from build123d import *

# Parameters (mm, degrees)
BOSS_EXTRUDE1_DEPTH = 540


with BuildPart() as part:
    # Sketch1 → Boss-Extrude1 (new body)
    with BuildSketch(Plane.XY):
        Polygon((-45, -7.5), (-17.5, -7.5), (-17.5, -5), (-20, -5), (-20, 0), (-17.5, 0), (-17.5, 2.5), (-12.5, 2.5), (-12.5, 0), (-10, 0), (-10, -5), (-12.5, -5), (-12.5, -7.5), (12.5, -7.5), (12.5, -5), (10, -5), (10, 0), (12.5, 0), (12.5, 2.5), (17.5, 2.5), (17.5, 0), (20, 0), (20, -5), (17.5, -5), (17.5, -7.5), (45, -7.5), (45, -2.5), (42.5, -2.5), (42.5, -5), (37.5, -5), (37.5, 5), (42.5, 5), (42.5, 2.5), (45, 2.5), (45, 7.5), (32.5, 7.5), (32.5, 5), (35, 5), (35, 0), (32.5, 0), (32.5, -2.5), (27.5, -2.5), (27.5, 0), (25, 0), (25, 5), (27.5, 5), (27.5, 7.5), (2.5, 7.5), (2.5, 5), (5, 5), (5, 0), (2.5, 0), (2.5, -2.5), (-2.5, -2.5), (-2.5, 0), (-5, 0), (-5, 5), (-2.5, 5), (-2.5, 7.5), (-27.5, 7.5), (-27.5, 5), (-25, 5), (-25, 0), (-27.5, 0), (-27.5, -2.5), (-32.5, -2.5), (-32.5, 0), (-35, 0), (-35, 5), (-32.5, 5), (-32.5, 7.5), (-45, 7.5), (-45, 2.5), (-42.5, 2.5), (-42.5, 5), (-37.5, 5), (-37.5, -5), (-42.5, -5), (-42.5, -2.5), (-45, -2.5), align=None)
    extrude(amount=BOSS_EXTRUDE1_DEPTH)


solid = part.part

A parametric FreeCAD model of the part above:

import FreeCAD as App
import Part
import Sketcher
Q = App.Units.Quantity

doc = App.newDocument("Part")
body = doc.addObject("PartDesign::Body", "Body")

sketch1 = doc.addObject("Sketcher::SketchObject", "Sketch")
body.addObject(sketch1)
sketch1.AttachmentSupport = (doc.XY_Plane, [""])
sketch1.MapMode = "FlatFace"
sketch1.addGeometry([
    Part.LineSegment(App.Vector(-45, -7.5, 0), App.Vector(-17.5, -7.5, 0)),
    Part.LineSegment(App.Vector(-17.5, -7.5, 0), App.Vector(-17.5, -5, 0)),
    Part.LineSegment(App.Vector(-17.5, -5, 0), App.Vector(-20, -5, 0)),
    Part.LineSegment(App.Vector(-20, -5, 0), App.Vector(-20, 0, 0)),
    Part.LineSegment(App.Vector(-20, 0, 0), App.Vector(-17.5, 0, 0)),
    Part.LineSegment(App.Vector(-17.5, 0, 0), App.Vector(-17.5, 2.5, 0)),
    Part.LineSegment(App.Vector(-17.5, 2.5, 0), App.Vector(-12.5, 2.5, 0)),
    Part.LineSegment(App.Vector(-12.5, 2.5, 0), App.Vector(-12.5, 0, 0)),
    Part.LineSegment(App.Vector(-12.5, 0, 0), App.Vector(-10, 0, 0)),
    Part.LineSegment(App.Vector(-10, 0, 0), App.Vector(-10, -5, 0)),
    Part.LineSegment(App.Vector(-10, -5, 0), App.Vector(-12.5, -5, 0)),
    Part.LineSegment(App.Vector(-12.5, -5, 0), App.Vector(-12.5, -7.5, 0)),
    Part.LineSegment(App.Vector(-12.5, -7.5, 0), App.Vector(12.5, -7.5, 0)),
    Part.LineSegment(App.Vector(12.5, -7.5, 0), App.Vector(12.5, -5, 0)),
    Part.LineSegment(App.Vector(12.5, -5, 0), App.Vector(10, -5, 0)),
    Part.LineSegment(App.Vector(10, -5, 0), App.Vector(10, 0, 0)),
    Part.LineSegment(App.Vector(10, 0, 0), App.Vector(12.5, 0, 0)),
    Part.LineSegment(App.Vector(12.5, 0, 0), App.Vector(12.5, 2.5, 0)),
    Part.LineSegment(App.Vector(12.5, 2.5, 0), App.Vector(17.5, 2.5, 0)),
    Part.LineSegment(App.Vector(17.5, 2.5, 0), App.Vector(17.5, 0, 0)),
    Part.LineSegment(App.Vector(17.5, 0, 0), App.Vector(20, 0, 0)),
    Part.LineSegment(App.Vector(20, 0, 0), App.Vector(20, -5, 0)),
    Part.LineSegment(App.Vector(20, -5, 0), App.Vector(17.5, -5, 0)),
    Part.LineSegment(App.Vector(17.5, -5, 0), App.Vector(17.5, -7.5, 0)),
    Part.LineSegment(App.Vector(17.5, -7.5, 0), App.Vector(45, -7.5, 0)),
    Part.LineSegment(App.Vector(45, -7.5, 0), App.Vector(45, -2.5, 0)),
    Part.LineSegment(App.Vector(45, -2.5, 0), App.Vector(42.5, -2.5, 0)),
    Part.LineSegment(App.Vector(42.5, -2.5, 0), App.Vector(42.5, -5, 0)),
    Part.LineSegment(App.Vector(42.5, -5, 0), App.Vector(37.5, -5, 0)),
    Part.LineSegment(App.Vector(37.5, -5, 0), App.Vector(37.5, 5, 0)),
    Part.LineSegment(App.Vector(37.5, 5, 0), App.Vector(42.5, 5, 0)),
    Part.LineSegment(App.Vector(42.5, 5, 0), App.Vector(42.5, 2.5, 0)),
    Part.LineSegment(App.Vector(42.5, 2.5, 0), App.Vector(45, 2.5, 0)),
    Part.LineSegment(App.Vector(45, 2.5, 0), App.Vector(45, 7.5, 0)),
    Part.LineSegment(App.Vector(45, 7.5, 0), App.Vector(32.5, 7.5, 0)),
    Part.LineSegment(App.Vector(32.5, 7.5, 0), App.Vector(32.5, 5, 0)),
    Part.LineSegment(App.Vector(32.5, 5, 0), App.Vector(35, 5, 0)),
    Part.LineSegment(App.Vector(35, 5, 0), App.Vector(35, 0, 0)),
    Part.LineSegment(App.Vector(35, 0, 0), App.Vector(32.5, 0, 0)),
    Part.LineSegment(App.Vector(32.5, 0, 0), App.Vector(32.5, -2.5, 0)),
    Part.LineSegment(App.Vector(32.5, -2.5, 0), App.Vector(27.5, -2.5, 0)),
    Part.LineSegment(App.Vector(27.5, -2.5, 0), App.Vector(27.5, 0, 0)),
    Part.LineSegment(App.Vector(27.5, 0, 0), App.Vector(25, 0, 0)),
    Part.LineSegment(App.Vector(25, 0, 0), App.Vector(25, 5, 0)),
    Part.LineSegment(App.Vector(25, 5, 0), App.Vector(27.5, 5, 0)),
    Part.LineSegment(App.Vector(27.5, 5, 0), App.Vector(27.5, 7.5, 0)),
    Part.LineSegment(App.Vector(27.5, 7.5, 0), App.Vector(2.5, 7.5, 0)),
    Part.LineSegment(App.Vector(2.5, 7.5, 0), App.Vector(2.5, 5, 0)),
    Part.LineSegment(App.Vector(2.5, 5, 0), App.Vector(5, 5, 0)),
    Part.LineSegment(App.Vector(5, 5, 0), App.Vector(5, 0, 0)),
    Part.LineSegment(App.Vector(5, 0, 0), App.Vector(2.5, 0, 0)),
    Part.LineSegment(App.Vector(2.5, 0, 0), App.Vector(2.5, -2.5, 0)),
    Part.LineSegment(App.Vector(2.5, -2.5, 0), App.Vector(-2.5, -2.5, 0)),
    Part.LineSegment(App.Vector(-2.5, -2.5, 0), App.Vector(-2.5, 0, 0)),
    Part.LineSegment(App.Vector(-2.5, 0, 0), App.Vector(-5, 0, 0)),
    Part.LineSegment(App.Vector(-5, 0, 0), App.Vector(-5, 5, 0)),
    Part.LineSegment(App.Vector(-5, 5, 0), App.Vector(-2.5, 5, 0)),
    Part.LineSegment(App.Vector(-2.5, 5, 0), App.Vector(-2.5, 7.5, 0)),
    Part.LineSegment(App.Vector(-2.5, 7.5, 0), App.Vector(-27.5, 7.5, 0)),
    Part.LineSegment(App.Vector(-27.5, 7.5, 0), App.Vector(-27.5, 5, 0)),
    Part.LineSegment(App.Vector(-27.5, 5, 0), App.Vector(-25, 5, 0)),
    Part.LineSegment(App.Vector(-25, 5, 0), App.Vector(-25, 0, 0)),
    Part.LineSegment(App.Vector(-25, 0, 0), App.Vector(-27.5, 0, 0)),
    Part.LineSegment(App.Vector(-27.5, 0, 0), App.Vector(-27.5, -2.5, 0)),
    Part.LineSegment(App.Vector(-27.5, -2.5, 0), App.Vector(-32.5, -2.5, 0)),
    Part.LineSegment(App.Vector(-32.5, -2.5, 0), App.Vector(-32.5, 0, 0)),
    Part.LineSegment(App.Vector(-32.5, 0, 0), App.Vector(-35, 0, 0)),
    Part.LineSegment(App.Vector(-35, 0, 0), App.Vector(-35, 5, 0)),
    Part.LineSegment(App.Vector(-35, 5, 0), App.Vector(-32.5, 5, 0)),
    Part.LineSegment(App.Vector(-32.5, 5, 0), App.Vector(-32.5, 7.5, 0)),
    Part.LineSegment(App.Vector(-32.5, 7.5, 0), App.Vector(-45, 7.5, 0)),
    Part.LineSegment(App.Vector(-45, 7.5, 0), App.Vector(-45, 2.5, 0)),
    Part.LineSegment(App.Vector(-45, 2.5, 0), App.Vector(-42.5, 2.5, 0)),
    Part.LineSegment(App.Vector(-42.5, 2.5, 0), App.Vector(-42.5, 5, 0)),
    Part.LineSegment(App.Vector(-42.5, 5, 0), App.Vector(-37.5, 5, 0)),
    Part.LineSegment(App.Vector(-37.5, 5, 0), App.Vector(-37.5, -5, 0)),
    Part.LineSegment(App.Vector(-37.5, -5, 0), App.Vector(-42.5, -5, 0)),
    Part.LineSegment(App.Vector(-42.5, -5, 0), App.Vector(-42.5, -2.5, 0)),
    Part.LineSegment(App.Vector(-42.5, -2.5, 0), App.Vector(-45, -2.5, 0)),
    Part.LineSegment(App.Vector(-45, -2.5, 0), App.Vector(-45, -7.5, 0)),
], False)
sketch1.addConstraint([
    Sketcher.Constraint("Coincident", 0, 2, 1, 1),
    Sketcher.Constraint("Coincident", 1, 2, 2, 1),
    Sketcher.Constraint("Coincident", 2, 2, 3, 1),
    Sketcher.Constraint("Coincident", 3, 2, 4, 1),
    Sketcher.Constraint("Coincident", 4, 2, 5, 1),
    Sketcher.Constraint("Coincident", 5, 2, 6, 1),
    Sketcher.Constraint("Coincident", 6, 2, 7, 1),
    Sketcher.Constraint("Coincident", 7, 2, 8, 1),
    Sketcher.Constraint("Coincident", 8, 2, 9, 1),
    Sketcher.Constraint("Coincident", 9, 2, 10, 1),
    Sketcher.Constraint("Coincident", 10, 2, 11, 1),
    Sketcher.Constraint("Coincident", 11, 2, 12, 1),
    Sketcher.Constraint("Coincident", 12, 2, 13, 1),
    Sketcher.Constraint("Coincident", 13, 2, 14, 1),
    Sketcher.Constraint("Coincident", 14, 2, 15, 1),
    Sketcher.Constraint("Coincident", 15, 2, 16, 1),
    Sketcher.Constraint("Coincident", 16, 2, 17, 1),
    Sketcher.Constraint("Coincident", 17, 2, 18, 1),
    Sketcher.Constraint("Coincident", 18, 2, 19, 1),
    Sketcher.Constraint("Coincident", 19, 2, 20, 1),
    Sketcher.Constraint("Coincident", 20, 2, 21, 1),
    Sketcher.Constraint("Coincident", 21, 2, 22, 1),
    Sketcher.Constraint("Coincident", 22, 2, 23, 1),
    Sketcher.Constraint("Coincident", 23, 2, 24, 1),
    Sketcher.Constraint("Coincident", 24, 2, 25, 1),
    Sketcher.Constraint("Coincident", 25, 2, 26, 1),
    Sketcher.Constraint("Coincident", 26, 2, 27, 1),
    Sketcher.Constraint("Coincident", 27, 2, 28, 1),
    Sketcher.Constraint("Coincident", 28, 2, 29, 1),
    Sketcher.Constraint("Coincident", 29, 2, 30, 1),
    Sketcher.Constraint("Coincident", 30, 2, 31, 1),
    Sketcher.Constraint("Coincident", 31, 2, 32, 1),
    Sketcher.Constraint("Coincident", 32, 2, 33, 1),
    Sketcher.Constraint("Coincident", 33, 2, 34, 1),
    Sketcher.Constraint("Coincident", 34, 2, 35, 1),
    Sketcher.Constraint("Coincident", 35, 2, 36, 1),
    Sketcher.Constraint("Coincident", 36, 2, 37, 1),
    Sketcher.Constraint("Coincident", 37, 2, 38, 1),
    Sketcher.Constraint("Coincident", 38, 2, 39, 1),
    Sketcher.Constraint("Coincident", 39, 2, 40, 1),
    Sketcher.Constraint("Coincident", 40, 2, 41, 1),
    Sketcher.Constraint("Coincident", 41, 2, 42, 1),
    Sketcher.Constraint("Coincident", 42, 2, 43, 1),
    Sketcher.Constraint("Coincident", 43, 2, 44, 1),
    Sketcher.Constraint("Coincident", 44, 2, 45, 1),
    Sketcher.Constraint("Coincident", 45, 2, 46, 1),
    Sketcher.Constraint("Coincident", 46, 2, 47, 1),
    Sketcher.Constraint("Coincident", 47, 2, 48, 1),
    Sketcher.Constraint("Coincident", 48, 2, 49, 1),
    Sketcher.Constraint("Coincident", 49, 2, 50, 1),
    Sketcher.Constraint("Coincident", 50, 2, 51, 1),
    Sketcher.Constraint("Coincident", 51, 2, 52, 1),
    Sketcher.Constraint("Coincident", 52, 2, 53, 1),
    Sketcher.Constraint("Coincident", 53, 2, 54, 1),
    Sketcher.Constraint("Coincident", 54, 2, 55, 1),
    Sketcher.Constraint("Coincident", 55, 2, 56, 1),
    Sketcher.Constraint("Coincident", 56, 2, 57, 1),
    Sketcher.Constraint("Coincident", 57, 2, 58, 1),
    Sketcher.Constraint("Coincident", 58, 2, 59, 1),
    Sketcher.Constraint("Coincident", 59, 2, 60, 1),
    Sketcher.Constraint("Coincident", 60, 2, 61, 1),
    Sketcher.Constraint("Coincident", 61, 2, 62, 1),
    Sketcher.Constraint("Coincident", 62, 2, 63, 1),
    Sketcher.Constraint("Coincident", 63, 2, 64, 1),
    Sketcher.Constraint("Coincident", 64, 2, 65, 1),
    Sketcher.Constraint("Coincident", 65, 2, 66, 1),
    Sketcher.Constraint("Coincident", 66, 2, 67, 1),
    Sketcher.Constraint("Coincident", 67, 2, 68, 1),
    Sketcher.Constraint("Coincident", 68, 2, 69, 1),
    Sketcher.Constraint("Coincident", 69, 2, 70, 1),
    Sketcher.Constraint("Coincident", 70, 2, 71, 1),
    Sketcher.Constraint("Coincident", 71, 2, 72, 1),
    Sketcher.Constraint("Coincident", 72, 2, 73, 1),
    Sketcher.Constraint("Coincident", 73, 2, 74, 1),
    Sketcher.Constraint("Coincident", 74, 2, 75, 1),
    Sketcher.Constraint("Coincident", 75, 2, 76, 1),
    Sketcher.Constraint("Coincident", 76, 2, 77, 1),
    Sketcher.Constraint("Coincident", 77, 2, 78, 1),
    Sketcher.Constraint("Coincident", 78, 2, 79, 1),
    Sketcher.Constraint("Coincident", 79, 2, 0, 1),
    Sketcher.Constraint("Horizontal", 0),
    Sketcher.Constraint("Vertical", 1),
    Sketcher.Constraint("Horizontal", 2),
    Sketcher.Constraint("Vertical", 3),
    Sketcher.Constraint("Horizontal", 4),
    Sketcher.Constraint("Vertical", 5),
    Sketcher.Constraint("Horizontal", 6),
    Sketcher.Constraint("Vertical", 7),
    Sketcher.Constraint("Horizontal", 8),
    Sketcher.Constraint("Vertical", 9),
    Sketcher.Constraint("Horizontal", 10),
    Sketcher.Constraint("Vertical", 11),
    Sketcher.Constraint("Horizontal", 12),
    Sketcher.Constraint("Vertical", 13),
    Sketcher.Constraint("Horizontal", 14),
    Sketcher.Constraint("Vertical", 15),
    Sketcher.Constraint("Horizontal", 16),
    Sketcher.Constraint("Vertical", 17),
    Sketcher.Constraint("Horizontal", 18),
    Sketcher.Constraint("Vertical", 19),
    Sketcher.Constraint("Horizontal", 20),
    Sketcher.Constraint("Vertical", 21),
    Sketcher.Constraint("Horizontal", 22),
    Sketcher.Constraint("Vertical", 23),
    Sketcher.Constraint("Horizontal", 24),
    Sketcher.Constraint("Vertical", 25),
    Sketcher.Constraint("Horizontal", 26),
    Sketcher.Constraint("Vertical", 27),
    Sketcher.Constraint("Horizontal", 28),
    Sketcher.Constraint("Vertical", 29),
    Sketcher.Constraint("Horizontal", 30),
    Sketcher.Constraint("Vertical", 31),
    Sketcher.Constraint("Horizontal", 32),
    Sketcher.Constraint("Vertical", 33),
    Sketcher.Constraint("Horizontal", 34),
    Sketcher.Constraint("Vertical", 35),
    Sketcher.Constraint("Horizontal", 36),
    Sketcher.Constraint("Vertical", 37),
    Sketcher.Constraint("Horizontal", 38),
    Sketcher.Constraint("Vertical", 39),
    Sketcher.Constraint("Horizontal", 40),
    Sketcher.Constraint("Vertical", 41),
    Sketcher.Constraint("Horizontal", 42),
    Sketcher.Constraint("Vertical", 43),
    Sketcher.Constraint("Horizontal", 44),
    Sketcher.Constraint("Vertical", 45),
    Sketcher.Constraint("Horizontal", 46),
    Sketcher.Constraint("Vertical", 47),
    Sketcher.Constraint("Horizontal", 48),
    Sketcher.Constraint("Vertical", 49),
    Sketcher.Constraint("Horizontal", 50),
    Sketcher.Constraint("Vertical", 51),
    Sketcher.Constraint("Horizontal", 52),
    Sketcher.Constraint("Vertical", 53),
    Sketcher.Constraint("Horizontal", 54),
    Sketcher.Constraint("Vertical", 55),
    Sketcher.Constraint("Horizontal", 56),
    Sketcher.Constraint("Vertical", 57),
    Sketcher.Constraint("Horizontal", 58),
    Sketcher.Constraint("Vertical", 59),
    Sketcher.Constraint("Horizontal", 60),
    Sketcher.Constraint("Vertical", 61),
    Sketcher.Constraint("Horizontal", 62),
    Sketcher.Constraint("Vertical", 63),
    Sketcher.Constraint("Horizontal", 64),
    Sketcher.Constraint("Vertical", 65),
    Sketcher.Constraint("Horizontal", 66),
    Sketcher.Constraint("Vertical", 67),
    Sketcher.Constraint("Horizontal", 68),
    Sketcher.Constraint("Vertical", 69),
    Sketcher.Constraint("Horizontal", 70),
    Sketcher.Constraint("Vertical", 71),
    Sketcher.Constraint("Horizontal", 72),
    Sketcher.Constraint("Vertical", 73),
    Sketcher.Constraint("Horizontal", 74),
    Sketcher.Constraint("Vertical", 75),
    Sketcher.Constraint("Horizontal", 76),
    Sketcher.Constraint("Vertical", 77),
    Sketcher.Constraint("Horizontal", 78),
    Sketcher.Constraint("Vertical", 79),
    Sketcher.Constraint("Symmetric", 8, 2, 15, 2, -1, 1),
    Sketcher.Constraint("Symmetric", 4, 2, 19, 2, -1, 1),
    Sketcher.Constraint("Symmetric", 50, 2, 53, 2, -1, 1),
    Sketcher.Constraint("Symmetric", 42, 2, 61, 2, -1, 1),
    Sketcher.Constraint("Symmetric", 38, 2, 65, 2, -1, 1),
    Sketcher.Constraint("Symmetric", 24, 2, 70, 2, -1, 1),
    Sketcher.Constraint("Symmetric", 26, 2, 72, 2, -1, 1),
    Sketcher.Constraint("Symmetric", 28, 2, 74, 2, -1, 1),
    Sketcher.Constraint("Symmetric", 30, 2, 76, 2, -1, 1),
    Sketcher.Constraint("Symmetric", 32, 2, 78, 2, -1, 1),
    Sketcher.Constraint("Symmetric", 10, 2, 13, 2, -2),
    Sketcher.Constraint("Symmetric", 7, 2, 16, 2, -2),
    Sketcher.Constraint("Symmetric", 3, 2, 20, 2, -2),
    Sketcher.Constraint("Symmetric", 1, 2, 22, 2, -2),
    Sketcher.Constraint("Symmetric", 49, 2, 54, 2, -2),
    Sketcher.Constraint("Symmetric", 47, 2, 56, 2, -2),
    Sketcher.Constraint("Symmetric", 45, 2, 58, 2, -2),
    Sketcher.Constraint("Symmetric", 41, 2, 62, 2, -2),
    Sketcher.Constraint("Symmetric", 37, 2, 66, 2, -2),
    Sketcher.Constraint("Symmetric", 35, 2, 68, 2, -2),
    Sketcher.Constraint("Symmetric", 33, 2, 70, 2, -2),
    Sketcher.Constraint("Symmetric", 31, 2, 72, 2, -2),
    Sketcher.Constraint("Horizontal", 2, 2, 9, 2),
    Sketcher.Constraint("Horizontal", 0, 2, 11, 2),
    Sketcher.Constraint("Horizontal", 6, 2, 17, 2),
    Sketcher.Constraint("Horizontal", 12, 2, 23, 2),
    Sketcher.Constraint("Horizontal", 22, 2, 27, 2),
    Sketcher.Constraint("Horizontal", 18, 2, 31, 2),
    Sketcher.Constraint("Horizontal", 30, 2, 35, 2),
    Sketcher.Constraint("Horizontal", 26, 2, 39, 2),
    Sketcher.Constraint("Horizontal", 36, 2, 43, 2),
    Sketcher.Constraint("Horizontal", 34, 2, 45, 2),
    Sketcher.Constraint("Horizontal", 44, 2, 47, 2),
    Sketcher.Constraint("Horizontal", 40, 2, 51, 2),
    Sketcher.Constraint("Horizontal", 56, 2, 59, 2),
    Sketcher.Constraint("Horizontal", 52, 2, 63, 2),
    Sketcher.Constraint("Horizontal", 68, 2, 73, 2),
    Sketcher.Constraint("Vertical", 1, 2, 4, 2),
    Sketcher.Constraint("Vertical", 7, 2, 10, 2),
    Sketcher.Constraint("Vertical", 35, 2, 38, 2),
    Sketcher.Constraint("Vertical", 41, 2, 44, 2),
    Sketcher.Constraint("Vertical", 47, 2, 50, 2),
    Sketcher.Constraint("Equal", 4, 8),
    Sketcher.Constraint("Equal", 22, 26),
    Sketcher.Constraint("Equal", 18, 28),
    Sketcher.Constraint("Equal", 32, 36),
    Sketcher.Constraint("Equal", 30, 40),
    Sketcher.Constraint("Equal", 38, 42),
    Sketcher.Constraint("Equal", 12, 46),
    Sketcher.Constraint("Equal", 44, 48),
    Sketcher.Constraint("Equal", 40, 52),
    Sketcher.Constraint("Equal", 78, 1),
    Sketcher.Constraint("Equal", 76, 3),
    Sketcher.Constraint("Equal", 1, 5),
    Sketcher.Constraint("Equal", 23, 27),
    Sketcher.Constraint("DistanceX", 6, 1, 6, 2, Q("5 mm")),
    Sketcher.Constraint("DistanceX", 12, 1, 12, 2, Q("25 mm")),
    Sketcher.Constraint("DistanceX", 0, 1, 0, 2, Q("27.5 mm")),
])
pad1 = doc.addObject("PartDesign::Pad", "Pad")
body.addObject(pad1)
pad1.Profile = sketch1
pad1.Length = 540

doc.recompute()
